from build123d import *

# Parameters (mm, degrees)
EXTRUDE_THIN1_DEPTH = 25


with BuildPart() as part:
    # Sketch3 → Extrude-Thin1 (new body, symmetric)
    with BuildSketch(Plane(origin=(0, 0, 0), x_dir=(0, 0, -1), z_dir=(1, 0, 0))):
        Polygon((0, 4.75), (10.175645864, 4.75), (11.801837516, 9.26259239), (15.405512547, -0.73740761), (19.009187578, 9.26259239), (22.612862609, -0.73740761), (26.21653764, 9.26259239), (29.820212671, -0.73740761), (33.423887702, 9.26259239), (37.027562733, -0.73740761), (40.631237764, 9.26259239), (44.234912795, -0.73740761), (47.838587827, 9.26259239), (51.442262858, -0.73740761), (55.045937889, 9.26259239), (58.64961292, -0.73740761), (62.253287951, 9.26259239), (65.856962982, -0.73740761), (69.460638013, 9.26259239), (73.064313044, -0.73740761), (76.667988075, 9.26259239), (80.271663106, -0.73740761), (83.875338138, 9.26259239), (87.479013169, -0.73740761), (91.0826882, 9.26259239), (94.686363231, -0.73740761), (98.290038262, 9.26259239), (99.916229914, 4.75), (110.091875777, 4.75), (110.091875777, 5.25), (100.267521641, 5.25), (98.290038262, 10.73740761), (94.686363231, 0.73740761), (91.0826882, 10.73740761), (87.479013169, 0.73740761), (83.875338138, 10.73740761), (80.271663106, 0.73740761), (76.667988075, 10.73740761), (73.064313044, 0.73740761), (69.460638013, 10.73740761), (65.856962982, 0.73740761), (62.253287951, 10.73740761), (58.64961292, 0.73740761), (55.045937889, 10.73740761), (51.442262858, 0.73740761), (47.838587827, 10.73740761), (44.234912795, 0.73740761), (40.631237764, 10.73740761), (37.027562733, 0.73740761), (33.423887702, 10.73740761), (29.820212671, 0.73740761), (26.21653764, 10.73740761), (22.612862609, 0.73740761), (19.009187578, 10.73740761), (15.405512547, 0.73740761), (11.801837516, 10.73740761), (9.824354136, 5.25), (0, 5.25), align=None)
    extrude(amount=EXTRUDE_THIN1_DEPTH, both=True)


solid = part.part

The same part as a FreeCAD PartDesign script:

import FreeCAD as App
import Part
import Sketcher
Q = App.Units.Quantity

doc = App.newDocument("Part")
params = doc.addObject("Spreadsheet::Sheet", "Params")
for row, (alias, value) in enumerate([
    ("sketch1_width", "0.5 mm"),
    ("pad1_length", "50 mm"),
], start=1):
    params.set(f"A{row}", alias)
    params.set(f"B{row}", "=" + value)
    params.setAlias(f"B{row}", alias)

body = doc.addObject("PartDesign::Body", "Body")

# Sketch on YZ plane
sketch1 = body.newObject("Sketcher::SketchObject", "Sketch")
sketch1.AttachmentSupport = (doc.getObject("YZ_Plane"), [""])
sketch1.MapMode = "FlatFace"
sketch1.addGeometry(Part.LineSegment(App.Vector(4.75, 0, 0), App.Vector(4.75, -10.175646, 0)), False)
sketch1.addGeometry(Part.LineSegment(App.Vector(4.75, -10.175646, 0), App.Vector(9.262592, -11.801838, 0)), False)
sketch1.addGeometry(Part.LineSegment(App.Vector(9.262592, -11.801838, 0), App.Vector(-0.737408, -15.405513, 0)), False)
sketch1.addGeometry(Part.LineSegment(App.Vector(-0.737408, -15.405513, 0), App.Vector(9.262592, -19.009188, 0)), False)
sketch1.addGeometry(Part.LineSegment(App.Vector(9.262592, -19.009188, 0), App.Vector(-0.737408, -22.612863, 0)), False)
sketch1.addGeometry(Part.LineSegment(App.Vector(-0.737408, -22.612863, 0), App.Vector(9.262592, -26.216538, 0)), False)
sketch1.addGeometry(Part.LineSegment(App.Vector(9.262592, -26.216538, 0), App.Vector(-0.737408, -29.820213, 0)), False)
sketch1.addGeometry(Part.LineSegment(App.Vector(-0.737408, -29.820213, 0), App.Vector(9.262592, -33.423888, 0)), False)
sketch1.addGeometry(Part.LineSegment(App.Vector(9.262592, -33.423888, 0), App.Vector(-0.737408, -37.027563, 0)), False)
sketch1.addGeometry(Part.LineSegment(App.Vector(-0.737408, -37.027563, 0), App.Vector(9.262592, -40.631238, 0)), False)
sketch1.addGeometry(Part.LineSegment(App.Vector(9.262592, -40.631238, 0), App.Vector(-0.737408, -44.234913, 0)), False)
sketch1.addGeometry(Part.LineSegment(App.Vector(-0.737408, -44.234913, 0), App.Vector(9.262592, -47.838588, 0)), False)
sketch1.addGeometry(Part.LineSegment(App.Vector(9.262592, -47.838588, 0), App.Vector(-0.737408, -51.442263, 0)), False)
sketch1.addGeometry(Part.LineSegment(App.Vector(-0.737408, -51.442263, 0), App.Vector(9.262592, -55.045938, 0)), False)
sketch1.addGeometry(Part.LineSegment(App.Vector(9.262592, -55.045938, 0), App.Vector(-0.737408, -58.649613, 0)), False)
sketch1.addGeometry(Part.LineSegment(App.Vector(-0.737408, -58.649613, 0), App.Vector(9.262592, -62.253288, 0)), False)
sketch1.addGeometry(Part.LineSegment(App.Vector(9.262592, -62.253288, 0), App.Vector(-0.737408, -65.856963, 0)), False)
sketch1.addGeometry(Part.LineSegment(App.Vector(-0.737408, -65.856963, 0), App.Vector(9.262592, -69.460638, 0)), False)
sketch1.addGeometry(Part.LineSegment(App.Vector(9.262592, -69.460638, 0), App.Vector(-0.737408, -73.064313, 0)), False)
sketch1.addGeometry(Part.LineSegment(App.Vector(-0.737408, -73.064313, 0), App.Vector(9.262592, -76.667988, 0)), False)
sketch1.addGeometry(Part.LineSegment(App.Vector(9.262592, -76.667988, 0), App.Vector(-0.737408, -80.271663, 0)), False)
sketch1.addGeometry(Part.LineSegment(App.Vector(-0.737408, -80.271663, 0), App.Vector(9.262592, -83.875338, 0)), False)
sketch1.addGeometry(Part.LineSegment(App.Vector(9.262592, -83.875338, 0), App.Vector(-0.737408, -87.479013, 0)), False)
sketch1.addGeometry(Part.LineSegment(App.Vector(-0.737408, -87.479013, 0), App.Vector(9.262592, -91.082688, 0)), False)
sketch1.addGeometry(Part.LineSegment(App.Vector(9.262592, -91.082688, 0), App.Vector(-0.737408, -94.686363, 0)), False)
sketch1.addGeometry(Part.LineSegment(App.Vector(-0.737408, -94.686363, 0), App.Vector(9.262592, -98.290038, 0)), False)
sketch1.addGeometry(Part.LineSegment(App.Vector(9.262592, -98.290038, 0), App.Vector(4.75, -99.91623, 0)), False)
sketch1.addGeometry(Part.LineSegment(App.Vector(4.75, -99.91623, 0), App.Vector(4.75, -110.091876, 0)), False)
sketch1.addGeometry(Part.LineSegment(App.Vector(4.75, -110.091876, 0), App.Vector(5.25, -110.091876, 0)), False)
sketch1.addGeometry(Part.LineSegment(App.Vector(5.25, -110.091876, 0), App.Vector(5.25, -100.267522, 0)), False)
sketch1.addGeometry(Part.LineSegment(App.Vector(5.25, -100.267522, 0), App.Vector(10.737408, -98.290038, 0)), False)
sketch1.addGeometry(Part.LineSegment(App.Vector(10.737408, -98.290038, 0), App.Vector(0.737408, -94.686363, 0)), False)
sketch1.addGeometry(Part.LineSegment(App.Vector(0.737408, -94.686363, 0), App.Vector(10.737408, -91.082688, 0)), False)
sketch1.addGeometry(Part.LineSegment(App.Vector(10.737408, -91.082688, 0), App.Vector(0.737408, -87.479013, 0)), False)
sketch1.addGeometry(Part.LineSegment(App.Vector(0.737408, -87.479013, 0), App.Vector(10.737408, -83.875338, 0)), False)
sketch1.addGeometry(Part.LineSegment(App.Vector(10.737408, -83.875338, 0), App.Vector(0.737408, -80.271663, 0)), False)
sketch1.addGeometry(Part.LineSegment(App.Vector(0.737408, -80.271663, 0), App.Vector(10.737408, -76.667988, 0)), False)
sketch1.addGeometry(Part.LineSegment(App.Vector(10.737408, -76.667988, 0), App.Vector(0.737408, -73.064313, 0)), False)
sketch1.addGeometry(Part.LineSegment(App.Vector(0.737408, -73.064313, 0), App.Vector(10.737408, -69.460638, 0)), False)
sketch1.addGeometry(Part.LineSegment(App.Vector(10.737408, -69.460638, 0), App.Vector(0.737408, -65.856963, 0)), False)
sketch1.addGeometry(Part.LineSegment(App.Vector(0.737408, -65.856963, 0), App.Vector(10.737408, -62.253288, 0)), False)
sketch1.addGeometry(Part.LineSegment(App.Vector(10.737408, -62.253288, 0), App.Vector(0.737408, -58.649613, 0)), False)
sketch1.addGeometry(Part.LineSegment(App.Vector(0.737408, -58.649613, 0), App.Vector(10.737408, -55.045938, 0)), False)
sketch1.addGeometry(Part.LineSegment(App.Vector(10.737408, -55.045938, 0), App.Vector(0.737408, -51.442263, 0)), False)
sketch1.addGeometry(Part.LineSegment(App.Vector(0.737408, -51.442263, 0), App.Vector(10.737408, -47.838588, 0)), False)
sketch1.addGeometry(Part.LineSegment(App.Vector(10.737408, -47.838588, 0), App.Vector(0.737408, -44.234913, 0)), False)
sketch1.addGeometry(Part.LineSegment(App.Vector(0.737408, -44.234913, 0), App.Vector(10.737408, -40.631238, 0)), False)
sketch1.addGeometry(Part.LineSegment(App.Vector(10.737408, -40.631238, 0), App.Vector(0.737408, -37.027563, 0)), False)
sketch1.addGeometry(Part.LineSegment(App.Vector(0.737408, -37.027563, 0), App.Vector(10.737408, -33.423888, 0)), False)
sketch1.addGeometry(Part.LineSegment(App.Vector(10.737408, -33.423888, 0), App.Vector(0.737408, -29.820213, 0)), False)
sketch1.addGeometry(Part.LineSegment(App.Vector(0.737408, -29.820213, 0), App.Vector(10.737408, -26.216538, 0)), False)
sketch1.addGeometry(Part.LineSegment(App.Vector(10.737408, -26.216538, 0), App.Vector(0.737408, -22.612863, 0)), False)
sketch1.addGeometry(Part.LineSegment(App.Vector(0.737408, -22.612863, 0), App.Vector(10.737408, -19.009188, 0)), False)
sketch1.addGeometry(Part.LineSegment(App.Vector(10.737408, -19.009188, 0), App.Vector(0.737408, -15.405513, 0)), False)
sketch1.addGeometry(Part.LineSegment(App.Vector(0.737408, -15.405513, 0), App.Vector(10.737408, -11.801838, 0)), False)
sketch1.addGeometry(Part.LineSegment(App.Vector(10.737408, -11.801838, 0), App.Vector(5.25, -9.824354, 0)), False)
sketch1.addGeometry(Part.LineSegment(App.Vector(5.25, -9.824354, 0), App.Vector(5.25, 0, 0)), False)
sketch1.addGeometry(Part.LineSegment(App.Vector(5.25, 0, 0), App.Vector(4.75, 0, 0)), False)
sketch1.addConstraint(Sketcher.Constraint("Coincident", 0, 2, 1, 1))
sketch1.addConstraint(Sketcher.Constraint("Coincident", 1, 2, 2, 1))
sketch1.addConstraint(Sketcher.Constraint("Coincident", 2, 2, 3, 1))
sketch1.addConstraint(Sketcher.Constraint("Coincident", 3, 2, 4, 1))
sketch1.addConstraint(Sketcher.Constraint("Coincident", 4, 2, 5, 1))
sketch1.addConstraint(Sketcher.Constraint("Coincident", 5, 2, 6, 1))
sketch1.addConstraint(Sketcher.Constraint("Coincident", 6, 2, 7, 1))
sketch1.addConstraint(Sketcher.Constraint("Coincident", 7, 2, 8, 1))
sketch1.addConstraint(Sketcher.Constraint("Coincident", 8, 2, 9, 1))
sketch1.addConstraint(Sketcher.Constraint("Coincident", 9, 2, 10, 1))
sketch1.addConstraint(Sketcher.Constraint("Coincident", 10, 2, 11, 1))
sketch1.addConstraint(Sketcher.Constraint("Coincident", 11, 2, 12, 1))
sketch1.addConstraint(Sketcher.Constraint("Coincident", 12, 2, 13, 1))
sketch1.addConstraint(Sketcher.Constraint("Coincident", 13, 2, 14, 1))
sketch1.addConstraint(Sketcher.Constraint("Coincident", 14, 2, 15, 1))
sketch1.addConstraint(Sketcher.Constraint("Coincident", 15, 2, 16, 1))
sketch1.addConstraint(Sketcher.Constraint("Coincident", 16, 2, 17, 1))
sketch1.addConstraint(Sketcher.Constraint("Coincident", 17, 2, 18, 1))
sketch1.addConstraint(Sketcher.Constraint("Coincident", 18, 2, 19, 1))
sketch1.addConstraint(Sketcher.Constraint("Coincident", 19, 2, 20, 1))
sketch1.addConstraint(Sketcher.Constraint("Coincident", 20, 2, 21, 1))
sketch1.addConstraint(Sketcher.Constraint("Coincident", 21, 2, 22, 1))
sketch1.addConstraint(Sketcher.Constraint("Coincident", 22, 2, 23, 1))
sketch1.addConstraint(Sketcher.Constraint("Coincident", 23, 2, 24, 1))
sketch1.addConstraint(Sketcher.Constraint("Coincident", 24, 2, 25, 1))
sketch1.addConstraint(Sketcher.Constraint("Coincident", 25, 2, 26, 1))
sketch1.addConstraint(Sketcher.Constraint("Coincident", 26, 2, 27, 1))
sketch1.addConstraint(Sketcher.Constraint("Coincident", 27, 2, 28, 1))
sketch1.addConstraint(Sketcher.Constraint("Coincident", 28, 2, 29, 1))
sketch1.addConstraint(Sketcher.Constraint("Coincident", 29, 2, 30, 1))
sketch1.addConstraint(Sketcher.Constraint("Coincident", 30, 2, 31, 1))
sketch1.addConstraint(Sketcher.Constraint("Coincident", 31, 2, 32, 1))
sketch1.addConstraint(Sketcher.Constraint("Coincident", 32, 2, 33, 1))
sketch1.addConstraint(Sketcher.Constraint("Coincident", 33, 2, 34, 1))
sketch1.addConstraint(Sketcher.Constraint("Coincident", 34, 2, 35, 1))
sketch1.addConstraint(Sketcher.Constraint("Coincident", 35, 2, 36, 1))
sketch1.addConstraint(Sketcher.Constraint("Coincident", 36, 2, 37, 1))
sketch1.addConstraint(Sketcher.Constraint("Coincident", 37, 2, 38, 1))
sketch1.addConstraint(Sketcher.Constraint("Coincident", 38, 2, 39, 1))
sketch1.addConstraint(Sketcher.Constraint("Coincident", 39, 2, 40, 1))
sketch1.addConstraint(Sketcher.Constraint("Coincident", 40, 2, 41, 1))
sketch1.addConstraint(Sketcher.Constraint("Coincident", 41, 2, 42, 1))
sketch1.addConstraint(Sketcher.Constraint("Coincident", 42, 2, 43, 1))
sketch1.addConstraint(Sketcher.Constraint("Coincident", 43, 2, 44, 1))
sketch1.addConstraint(Sketcher.Constraint("Coincident", 44, 2, 45, 1))
sketch1.addConstraint(Sketcher.Constraint("Coincident", 45, 2, 46, 1))
sketch1.addConstraint(Sketcher.Constraint("Coincident", 46, 2, 47, 1))
sketch1.addConstraint(Sketcher.Constraint("Coincident", 47, 2, 48, 1))
sketch1.addConstraint(Sketcher.Constraint("Coincident", 48, 2, 49, 1))
sketch1.addConstraint(Sketcher.Constraint("Coincident", 49, 2, 50, 1))
sketch1.addConstraint(Sketcher.Constraint("Coincident", 50, 2, 51, 1))
sketch1.addConstraint(Sketcher.Constraint("Coincident", 51, 2, 52, 1))
sketch1.addConstraint(Sketcher.Constraint("Coincident", 52, 2, 53, 1))
sketch1.addConstraint(Sketcher.Constraint("Coincident", 53, 2, 54, 1))
sketch1.addConstraint(Sketcher.Constraint("Coincident", 54, 2, 55, 1))
sketch1.addConstraint(Sketcher.Constraint("Coincident", 55, 2, 56, 1))
sketch1.addConstraint(Sketcher.Constraint("Coincident", 56, 2, 57, 1))
sketch1.addConstraint(Sketcher.Constraint("Coincident", 57, 2, 0, 1))
sketch1.addConstraint(Sketcher.Constraint("Vertical", 0))
sketch1.addConstraint(Sketcher.Constraint("Vertical", 27))
sketch1.addConstraint(Sketcher.Constraint("Horizontal", 28))
sketch1.addConstraint(Sketcher.Constraint("Vertical", 29))
sketch1.addConstraint(Sketcher.Constraint("Vertical", 56))
sketch1.addConstraint(Sketcher.Constraint("Horizontal", 57))
sketch1.addConstraint(Sketcher.Constraint("Symmetric", 24, 2, 31, 2, -2))
sketch1.addConstraint(Sketcher.Constraint("Symmetric", 22, 2, 33, 2, -2))
sketch1.addConstraint(Sketcher.Constraint("Symmetric", 20, 2, 35, 2, -2))
sketch1.addConstraint(Sketcher.Constraint("Symmetric", 18, 2, 37, 2, -2))
sketch1.addConstraint(Sketcher.Constraint("Symmetric", 16, 2, 39, 2, -2))
sketch1.addConstraint(Sketcher.Constraint("Symmetric", 14, 2, 41, 2, -2))
sketch1.addConstraint(Sketcher.Constraint("Symmetric", 12, 2, 43, 2, -2))
sketch1.addConstraint(Sketcher.Constraint("Symmetric", 10, 2, 45, 2, -2))
sketch1.addConstraint(Sketcher.Constraint("Symmetric", 8, 2, 47, 2, -2))
sketch1.addConstraint(Sketcher.Constraint("Symmetric", 6, 2, 49, 2, -2))
sketch1.addConstraint(Sketcher.Constraint("Symmetric", 4, 2, 51, 2, -2))
sketch1.addConstraint(Sketcher.Constraint("Symmetric", 2, 2, 53, 2, -2))
sketch1.addConstraint(Sketcher.Constraint("PointOnObject", 56, 2, -1))
sketch1.addConstraint(Sketcher.Constraint("Parallel", 1, 3))
sketch1.addConstraint(Sketcher.Constraint("Parallel", 2, 4))
sketch1.addConstraint(Sketcher.Constraint("Parallel", 3, 5))
sketch1.addConstraint(Sketcher.Constraint("Parallel", 4, 6))
sketch1.addConstraint(Sketcher.Constraint("Parallel", 5, 7))
sketch1.addConstraint(Sketcher.Constraint("Parallel", 6, 8))
sketch1.addConstraint(Sketcher.Constraint("Parallel", 7, 9))
sketch1.addConstraint(Sketcher.Constraint("Parallel", 8, 10))
sketch1.addConstraint(Sketcher.Constraint("Parallel", 9, 11))
sketch1.addConstraint(Sketcher.Constraint("Parallel", 10, 12))
sketch1.addConstraint(Sketcher.Constraint("Parallel", 11, 13))
sketch1.addConstraint(Sketcher.Constraint("Parallel", 12, 14))
sketch1.addConstraint(Sketcher.Constraint("Parallel", 13, 15))
sketch1.addConstraint(Sketcher.Constraint("Parallel", 14, 16))
sketch1.addConstraint(Sketcher.Constraint("Parallel", 15, 17))
sketch1.addConstraint(Sketcher.Constraint("Parallel", 16, 18))
sketch1.addConstraint(Sketcher.Constraint("Parallel", 17, 19))
sketch1.addConstraint(Sketcher.Constraint("Parallel", 18, 20))
sketch1.addConstraint(Sketcher.Constraint("Parallel", 19, 21))
sketch1.addConstraint(Sketcher.Constraint("Parallel", 20, 22))
sketch1.addConstraint(Sketcher.Constraint("Parallel", 21, 23))
sketch1.addConstraint(Sketcher.Constraint("Parallel", 22, 24))
sketch1.addConstraint(Sketcher.Constraint("Parallel", 23, 25))
sketch1.addConstraint(Sketcher.Constraint("Parallel", 24, 26))
sketch1.addConstraint(Sketcher.Constraint("Parallel", 26, 30))
sketch1.addConstraint(Sketcher.Constraint("Parallel", 25, 31))
sketch1.addConstraint(Sketcher.Constraint("Parallel", 30, 32))
sketch1.addConstraint(Sketcher.Constraint("Parallel", 31, 33))
sketch1.addConstraint(Sketcher.Constraint("Parallel", 32, 34))
sketch1.addConstraint(Sketcher.Constraint("Parallel", 33, 35))
sketch1.addConstraint(Sketcher.Constraint("Parallel", 34, 36))
sketch1.addConstraint(Sketcher.Constraint("Parallel", 35, 37))
sketch1.addConstraint(Sketcher.Constraint("Parallel", 36, 38))
sketch1.addConstraint(Sketcher.Constraint("Parallel", 37, 39))
sketch1.addConstraint(Sketcher.Constraint("Parallel", 38, 40))
sketch1.addConstraint(Sketcher.Constraint("Parallel", 39, 41))
sketch1.addConstraint(Sketcher.Constraint("Parallel", 40, 42))
sketch1.addConstraint(Sketcher.Constraint("Parallel", 41, 43))
sketch1.addConstraint(Sketcher.Constraint("Parallel", 42, 44))
sketch1.addConstraint(Sketcher.Constraint("Parallel", 43, 45))
sketch1.addConstraint(Sketcher.Constraint("Parallel", 44, 46))
sketch1.addConstraint(Sketcher.Constraint("Parallel", 45, 47))
sketch1.addConstraint(Sketcher.Constraint("Parallel", 46, 48))
sketch1.addConstraint(Sketcher.Constraint("Parallel", 47, 49))
sketch1.addConstraint(Sketcher.Constraint("Parallel", 48, 50))
sketch1.addConstraint(Sketcher.Constraint("Parallel", 49, 51))
sketch1.addConstraint(Sketcher.Constraint("Parallel", 50, 52))
sketch1.addConstraint(Sketcher.Constraint("Parallel", 51, 53))
sketch1.addConstraint(Sketcher.Constraint("Parallel", 52, 54))
sketch1.addConstraint(Sketcher.Constraint("Parallel", 53, 55))
sketch1.addConstraint(Sketcher.Constraint("Horizontal", 25, 2, 30, 2))
sketch1.addConstraint(Sketcher.Constraint("Horizontal", 23, 2, 32, 2))
sketch1.addConstraint(Sketcher.Constraint("Horizontal", 21, 2, 34, 2))
sketch1.addConstraint(Sketcher.Constraint("Horizontal", 19, 2, 36, 2))
sketch1.addConstraint(Sketcher.Constraint("Horizontal", 17, 2, 38, 2))
sketch1.addConstraint(Sketcher.Constraint("Horizontal", 15, 2, 40, 2))
sketch1.addConstraint(Sketcher.Constraint("Horizontal", 13, 2, 42, 2))
sketch1.addConstraint(Sketcher.Constraint("Horizontal", 11, 2, 44, 2))
sketch1.addConstraint(Sketcher.Constraint("Horizontal", 9, 2, 46, 2))
sketch1.addConstraint(Sketcher.Constraint("Horizontal", 7, 2, 48, 2))
sketch1.addConstraint(Sketcher.Constraint("Horizontal", 5, 2, 50, 2))
sketch1.addConstraint(Sketcher.Constraint("Horizontal", 3, 2, 52, 2))
sketch1.addConstraint(Sketcher.Constraint("Horizontal", 1, 2, 54, 2))
sketch1.addConstraint(Sketcher.Constraint("Vertical", 1, 2, 3, 2))
sketch1.addConstraint(Sketcher.Constraint("Vertical", 3, 2, 5, 2))
sketch1.addConstraint(Sketcher.Constraint("Vertical", 5, 2, 7, 2))
sketch1.addConstraint(Sketcher.Constraint("Vertical", 7, 2, 9, 2))
sketch1.addConstraint(Sketcher.Constraint("Vertical", 9, 2, 11, 2))
sketch1.addConstraint(Sketcher.Constraint("Vertical", 11, 2, 13, 2))
sketch1.addConstraint(Sketcher.Constraint("Vertical", 13, 2, 15, 2))
sketch1.addConstraint(Sketcher.Constraint("Vertical", 15, 2, 17, 2))
sketch1.addConstraint(Sketcher.Constraint("Vertical", 17, 2, 19, 2))
sketch1.addConstraint(Sketcher.Constraint("Vertical", 19, 2, 21, 2))
sketch1.addConstraint(Sketcher.Constraint("Vertical", 21, 2, 23, 2))
sketch1.addConstraint(Sketcher.Constraint("Vertical", 23, 2, 25, 2))
sketch1.addConstraint(Sketcher.Constraint("Vertical", 0, 2, 26, 2))
sketch1.addConstraint(Sketcher.Constraint("Vertical", 29, 2, 55, 2))
sketch1.addConstraint(Sketcher.Constraint("Equal", 0, 27))
sketch1.addConstraint(Sketcher.Constraint("Equal", 29, 56))
sketch1.addConstraint(Sketcher.Constraint("DistanceX", 28, 1, 28, 2, Q("0.5 mm")))
sketch1.addConstraint(Sketcher.Constraint("DistanceX", 2, 2, 1, 2, Q("10 mm")))
sketch1.addConstraint(Sketcher.Constraint("DistanceX", -1, 1, 0, 2, Q("4.75 mm")))
sketch1.addConstraint(Sketcher.Constraint("DistanceY", 5, 2, 1, 2, Q("14.4147 mm")))
sketch1.addConstraint(Sketcher.Constraint("DistanceY", 0, 2, 0, 1, Q("10.175646 mm")))
sketch1.addConstraint(Sketcher.Constraint("DistanceY", 29, 1, 29, 2, Q("9.824354 mm")))
sketch1.setExpression("Constraints[156]", "Params.sketch1_width")
pad1 = body.newObject("PartDesign::Pad", "Pad")
pad1.Profile = sketch1
pad1.setExpression("Length", "Params.pad1_length")
pad1.Midplane = True

doc.recompute()
